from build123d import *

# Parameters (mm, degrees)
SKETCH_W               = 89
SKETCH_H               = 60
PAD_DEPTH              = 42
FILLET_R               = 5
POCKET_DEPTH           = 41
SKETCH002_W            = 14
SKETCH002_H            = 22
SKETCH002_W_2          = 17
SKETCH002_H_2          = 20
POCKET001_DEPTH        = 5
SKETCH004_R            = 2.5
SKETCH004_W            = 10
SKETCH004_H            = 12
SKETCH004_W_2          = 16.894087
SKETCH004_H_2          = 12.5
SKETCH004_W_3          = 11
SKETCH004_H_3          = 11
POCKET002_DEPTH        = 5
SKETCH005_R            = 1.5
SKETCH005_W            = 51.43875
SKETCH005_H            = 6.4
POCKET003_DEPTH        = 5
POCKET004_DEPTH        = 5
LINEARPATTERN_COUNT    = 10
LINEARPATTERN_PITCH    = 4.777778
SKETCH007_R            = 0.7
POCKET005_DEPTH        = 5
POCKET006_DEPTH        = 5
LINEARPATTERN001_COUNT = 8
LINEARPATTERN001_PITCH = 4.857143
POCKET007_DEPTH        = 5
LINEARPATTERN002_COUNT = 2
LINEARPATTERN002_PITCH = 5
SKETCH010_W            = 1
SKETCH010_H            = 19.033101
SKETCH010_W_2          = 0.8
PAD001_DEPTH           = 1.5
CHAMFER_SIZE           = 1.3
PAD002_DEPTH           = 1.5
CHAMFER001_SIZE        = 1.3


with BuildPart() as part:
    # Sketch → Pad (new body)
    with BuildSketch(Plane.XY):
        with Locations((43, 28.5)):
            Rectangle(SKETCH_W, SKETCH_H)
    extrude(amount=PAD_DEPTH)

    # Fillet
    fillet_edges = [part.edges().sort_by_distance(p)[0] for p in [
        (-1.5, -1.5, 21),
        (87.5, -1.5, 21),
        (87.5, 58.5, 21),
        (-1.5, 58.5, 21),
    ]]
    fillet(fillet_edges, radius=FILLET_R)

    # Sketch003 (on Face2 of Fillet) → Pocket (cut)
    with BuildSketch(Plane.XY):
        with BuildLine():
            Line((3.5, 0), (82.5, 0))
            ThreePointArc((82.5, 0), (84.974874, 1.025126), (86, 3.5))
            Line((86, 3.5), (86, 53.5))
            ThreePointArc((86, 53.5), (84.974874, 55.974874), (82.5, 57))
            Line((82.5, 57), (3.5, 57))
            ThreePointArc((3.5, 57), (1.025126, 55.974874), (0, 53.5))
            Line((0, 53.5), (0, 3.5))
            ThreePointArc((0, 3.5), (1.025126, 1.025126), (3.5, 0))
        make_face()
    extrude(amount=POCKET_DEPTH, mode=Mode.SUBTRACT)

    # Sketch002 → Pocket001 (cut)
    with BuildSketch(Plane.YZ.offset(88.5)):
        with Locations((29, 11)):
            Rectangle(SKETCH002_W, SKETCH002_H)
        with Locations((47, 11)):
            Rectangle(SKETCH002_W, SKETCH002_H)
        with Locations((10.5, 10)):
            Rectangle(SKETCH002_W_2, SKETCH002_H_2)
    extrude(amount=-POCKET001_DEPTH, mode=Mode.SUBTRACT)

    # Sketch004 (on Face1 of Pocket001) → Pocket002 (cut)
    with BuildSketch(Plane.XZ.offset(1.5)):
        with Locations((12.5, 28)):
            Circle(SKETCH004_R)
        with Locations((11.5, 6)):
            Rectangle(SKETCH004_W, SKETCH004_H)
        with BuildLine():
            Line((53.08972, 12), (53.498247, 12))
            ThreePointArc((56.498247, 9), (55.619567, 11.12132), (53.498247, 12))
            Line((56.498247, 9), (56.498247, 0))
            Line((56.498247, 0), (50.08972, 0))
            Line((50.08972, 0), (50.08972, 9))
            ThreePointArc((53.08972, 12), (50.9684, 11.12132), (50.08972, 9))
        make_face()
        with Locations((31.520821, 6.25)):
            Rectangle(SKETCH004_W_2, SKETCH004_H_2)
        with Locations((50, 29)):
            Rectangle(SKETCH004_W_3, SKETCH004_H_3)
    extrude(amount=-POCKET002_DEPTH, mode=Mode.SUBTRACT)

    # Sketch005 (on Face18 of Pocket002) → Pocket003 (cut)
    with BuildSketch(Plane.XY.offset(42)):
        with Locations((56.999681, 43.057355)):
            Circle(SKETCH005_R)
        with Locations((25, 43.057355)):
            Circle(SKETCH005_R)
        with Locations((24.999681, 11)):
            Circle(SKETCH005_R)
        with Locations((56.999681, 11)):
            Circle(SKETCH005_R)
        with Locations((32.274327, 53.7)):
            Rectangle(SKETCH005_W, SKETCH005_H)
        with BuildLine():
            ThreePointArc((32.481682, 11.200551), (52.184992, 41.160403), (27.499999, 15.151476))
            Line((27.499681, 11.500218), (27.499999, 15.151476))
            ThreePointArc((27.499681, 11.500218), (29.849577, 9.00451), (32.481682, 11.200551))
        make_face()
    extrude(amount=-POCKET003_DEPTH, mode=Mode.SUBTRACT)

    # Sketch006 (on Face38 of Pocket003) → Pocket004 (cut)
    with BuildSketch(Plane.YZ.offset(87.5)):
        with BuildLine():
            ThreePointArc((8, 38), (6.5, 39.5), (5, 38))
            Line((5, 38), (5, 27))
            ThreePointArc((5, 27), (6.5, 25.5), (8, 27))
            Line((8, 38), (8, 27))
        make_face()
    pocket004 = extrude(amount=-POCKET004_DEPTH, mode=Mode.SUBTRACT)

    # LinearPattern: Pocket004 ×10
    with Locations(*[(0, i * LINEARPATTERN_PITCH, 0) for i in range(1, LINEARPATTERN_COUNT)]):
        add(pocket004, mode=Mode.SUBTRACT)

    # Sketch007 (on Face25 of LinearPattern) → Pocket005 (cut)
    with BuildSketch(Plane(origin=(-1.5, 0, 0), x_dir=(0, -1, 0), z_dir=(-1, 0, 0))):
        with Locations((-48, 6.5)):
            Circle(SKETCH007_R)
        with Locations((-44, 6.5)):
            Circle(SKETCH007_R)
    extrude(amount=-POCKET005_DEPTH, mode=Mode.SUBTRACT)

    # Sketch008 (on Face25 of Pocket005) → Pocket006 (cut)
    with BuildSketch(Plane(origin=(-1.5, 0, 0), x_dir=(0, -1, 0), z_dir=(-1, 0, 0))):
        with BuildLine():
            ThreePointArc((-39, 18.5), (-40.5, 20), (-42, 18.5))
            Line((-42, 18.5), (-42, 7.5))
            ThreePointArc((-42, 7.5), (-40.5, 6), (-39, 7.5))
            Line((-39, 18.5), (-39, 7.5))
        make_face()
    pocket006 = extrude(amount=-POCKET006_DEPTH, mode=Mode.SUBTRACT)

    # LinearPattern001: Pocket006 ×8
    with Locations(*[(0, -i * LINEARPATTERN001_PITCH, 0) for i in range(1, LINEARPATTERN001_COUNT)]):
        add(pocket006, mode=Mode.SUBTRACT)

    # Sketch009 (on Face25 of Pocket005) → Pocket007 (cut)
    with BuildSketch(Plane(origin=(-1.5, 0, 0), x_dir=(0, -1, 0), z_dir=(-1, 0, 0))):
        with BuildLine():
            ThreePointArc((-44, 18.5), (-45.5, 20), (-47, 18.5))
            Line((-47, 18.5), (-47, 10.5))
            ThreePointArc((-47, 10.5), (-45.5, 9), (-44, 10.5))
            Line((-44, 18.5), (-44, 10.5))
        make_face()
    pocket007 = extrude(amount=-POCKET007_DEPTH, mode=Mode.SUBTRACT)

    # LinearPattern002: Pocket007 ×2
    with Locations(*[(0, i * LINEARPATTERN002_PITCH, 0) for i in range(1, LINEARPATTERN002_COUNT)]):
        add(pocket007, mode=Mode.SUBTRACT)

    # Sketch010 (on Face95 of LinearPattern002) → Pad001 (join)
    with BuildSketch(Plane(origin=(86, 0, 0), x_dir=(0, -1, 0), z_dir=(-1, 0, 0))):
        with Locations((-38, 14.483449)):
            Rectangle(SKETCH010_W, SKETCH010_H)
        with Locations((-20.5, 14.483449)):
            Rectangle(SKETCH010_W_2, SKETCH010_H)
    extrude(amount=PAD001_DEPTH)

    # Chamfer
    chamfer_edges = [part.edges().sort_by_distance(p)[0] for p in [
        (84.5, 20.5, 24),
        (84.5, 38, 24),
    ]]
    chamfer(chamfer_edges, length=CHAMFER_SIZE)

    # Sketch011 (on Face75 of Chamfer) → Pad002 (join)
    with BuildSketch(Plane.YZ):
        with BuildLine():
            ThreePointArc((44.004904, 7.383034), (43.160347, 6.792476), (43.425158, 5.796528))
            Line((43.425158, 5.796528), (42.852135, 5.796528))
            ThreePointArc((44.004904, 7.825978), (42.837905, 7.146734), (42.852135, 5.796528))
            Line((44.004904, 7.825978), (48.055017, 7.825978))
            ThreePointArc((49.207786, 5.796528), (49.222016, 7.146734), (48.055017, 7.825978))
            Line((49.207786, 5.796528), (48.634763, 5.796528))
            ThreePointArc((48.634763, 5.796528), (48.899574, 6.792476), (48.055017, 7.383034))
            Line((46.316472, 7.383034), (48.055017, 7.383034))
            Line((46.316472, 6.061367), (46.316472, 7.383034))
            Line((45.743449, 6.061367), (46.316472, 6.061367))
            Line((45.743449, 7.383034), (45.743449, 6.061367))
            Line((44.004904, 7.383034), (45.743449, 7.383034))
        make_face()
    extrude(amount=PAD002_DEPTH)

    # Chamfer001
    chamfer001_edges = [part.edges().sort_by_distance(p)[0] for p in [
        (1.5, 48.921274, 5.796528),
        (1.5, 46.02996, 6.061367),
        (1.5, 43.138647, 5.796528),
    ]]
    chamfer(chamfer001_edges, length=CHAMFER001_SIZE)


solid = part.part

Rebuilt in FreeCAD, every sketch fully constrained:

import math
import FreeCAD as App
import Part
import Sketcher

V = App.Vector
Q = App.Units.Quantity


def edges_at(feature, points):
    """Names of the edges that pass closest to the given points."""
    edges = feature.Shape.Edges
    near = lambda p: min(range(len(edges)), key=lambda i: edges[i].distToShape(Part.Vertex(*p))[0])
    return sorted({f"Edge{near(p) + 1}" for p in points})

doc = App.newDocument("Part")
body = doc.addObject("PartDesign::Body", "Body")

# Sketch on XY plane
sketch1 = body.newObject("Sketcher::SketchObject", "Sketch")
sketch1.AttachmentSupport = (doc.getObject("XY_Plane"), [""])
sketch1.MapMode = "FlatFace"
sketch1.addGeometry(Part.LineSegment(V(-2, 58, 0), V(-2, -2, 0)), False)
sketch1.addGeometry(Part.LineSegment(V(-2, -2, 0), V(88, -2, 0)), False)
sketch1.addGeometry(Part.LineSegment(V(88, -2, 0), V(88, 58, 0)), False)
sketch1.addGeometry(Part.LineSegment(V(88, 58, 0), V(-2, 58, 0)), False)
sketch1.addConstraint(Sketcher.Constraint("Coincident", 0, 2, 1, 1))
sketch1.addConstraint(Sketcher.Constraint("Coincident", 1, 2, 2, 1))
sketch1.addConstraint(Sketcher.Constraint("Coincident", 2, 2, 3, 1))
sketch1.addConstraint(Sketcher.Constraint("Coincident", 3, 2, 0, 1))
sketch1.addConstraint(Sketcher.Constraint("Vertical", 0))
sketch1.addConstraint(Sketcher.Constraint("Horizontal", 1))
sketch1.addConstraint(Sketcher.Constraint("Vertical", 2))
sketch1.addConstraint(Sketcher.Constraint("Horizontal", 3))
sketch1.addConstraint(Sketcher.Constraint("DistanceX", 1, 1, 1, 2, Q("89 mm")))
sketch1.addConstraint(Sketcher.Constraint("DistanceY", 0, 2, 0, 1, Q("60 mm")))
sketch1.addConstraint(Sketcher.Constraint("DistanceX", 0, 2, -1, 1, Q("1.5 mm")))
sketch1.addConstraint(Sketcher.Constraint("DistanceY", 0, 2, -1, 1, Q("1.5 mm")))
pad1 = body.newObject("PartDesign::Pad", "Pad")
pad1.Profile = sketch1
pad1.Length = 42
doc.recompute()

fillet = body.newObject("PartDesign::Fillet", "Fillet")
fillet.Base = (pad1, edges_at(pad1, [
    (-1.5, -1.5, 21),
    (87.5, -1.5, 21),
    (87.5, 58.5, 21),
    (-1.5, 58.5, 21),
]))
fillet.Radius = 5

# Sketch on XY plane
sketch2 = body.newObject("Sketcher::SketchObject", "Sketch001")
sketch2.AttachmentSupport = (doc.getObject("XY_Plane"), [""])
sketch2.MapMode = "FlatFace"
sketch2.addGeometry(Part.LineSegment(V(3.5, 0, 0), V(82.5, 0, 0)), False)
sketch2.addGeometry(Part.ArcOfCircle(Part.Circle(V(82.5, 3.5, 0), V(0, 0, 1), 3.5), math.radians(-90), math.radians(0)), False)
sketch2.addGeometry(Part.LineSegment(V(86, 3.5, 0), V(86, 53.5, 0)), False)
sketch2.addGeometry(Part.ArcOfCircle(Part.Circle(V(82.5, 53.5, 0), V(0, 0, 1), 3.5), math.radians(0), math.radians(90)), False)
sketch2.addGeometry(Part.LineSegment(V(82.5, 57, 0), V(3.5, 57, 0)), False)
sketch2.addGeometry(Part.ArcOfCircle(Part.Circle(V(3.5, 53.5, 0), V(0, 0, 1), 3.5), math.radians(90), math.radians(180)), False)
sketch2.addGeometry(Part.LineSegment(V(0, 53.5, 0), V(0, 3.5, 0)), False)
sketch2.addGeometry(Part.ArcOfCircle(Part.Circle(V(3.5, 3.5, 0), V(0, 0, 1), 3.5), math.radians(180), math.radians(270)), False)
sketch2.addConstraint(Sketcher.Constraint("Tangent", 0, 2, 1, 1))
sketch2.addConstraint(Sketcher.Constraint("Tangent", 1, 2, 2, 1))
sketch2.addConstraint(Sketcher.Constraint("Tangent", 2, 2, 3, 1))
sketch2.addConstraint(Sketcher.Constraint("Tangent", 3, 2, 4, 1))
sketch2.addConstraint(Sketcher.Constraint("Tangent", 4, 2, 5, 1))
sketch2.addConstraint(Sketcher.Constraint("Tangent", 5, 2, 6, 1))
sketch2.addConstraint(Sketcher.Constraint("Tangent", 6, 2, 7, 1))
sketch2.addConstraint(Sketcher.Constraint("Tangent", 7, 2, 0, 1))
sketch2.addConstraint(Sketcher.Constraint("Horizontal", 0))
sketch2.addConstraint(Sketcher.Constraint("Vertical", 2))
sketch2.addConstraint(Sketcher.Constraint("Horizontal", 4))
sketch2.addConstraint(Sketcher.Constraint("Vertical", 6))
sketch2.addConstraint(Sketcher.Constraint("Equal", 1, 3))
sketch2.addConstraint(Sketcher.Constraint("Equal", 3, 5))
sketch2.addConstraint(Sketcher.Constraint("Equal", 5, 7))
sketch2.addConstraint(Sketcher.Constraint("PointOnObject", 0, 2, -1))
sketch2.addConstraint(Sketcher.Constraint("PointOnObject", 5, 2, -2))
sketch2.addConstraint(Sketcher.Constraint("Radius", 1, Q("3.499999 mm")))
sketch2.addConstraint(Sketcher.Constraint("DistanceX", 0, 1, 0, 2, Q("79 mm")))
sketch2.addConstraint(Sketcher.Constraint("DistanceY", 2, 1, 2, 2, Q("50 mm")))
pocket1 = body.newObject("PartDesign::Pocket", "Pocket")
pocket1.Profile = sketch2
pocket1.Length = 41
pocket1.Reversed = True

# Sketch on YZ plane
sketch3 = body.newObject("Sketcher::SketchObject", "Sketch002")
sketch3.AttachmentSupport = (doc.getObject("YZ_Plane"), [""])
sketch3.MapMode = "FlatFace"
sketch3.AttachmentOffset = App.Placement(V(0, 0, 88.5), App.Rotation())
sketch3.addGeometry(Part.LineSegment(V(22, 22, 0), V(22, 0, 0)), False)
sketch3.addGeometry(Part.LineSegment(V(22, 0, 0), V(36, 0, 0)), False)
sketch3.addGeometry(Part.LineSegment(V(36, 0, 0), V(36, 22, 0)), False)
sketch3.addGeometry(Part.LineSegment(V(36, 22, 0), V(22, 22, 0)), False)
sketch3.addGeometry(Part.LineSegment(V(40, 22, 0), V(40, 0, 0)), False)
sketch3.addGeometry(Part.LineSegment(V(40, 0, 0), V(54, 0, 0)), False)
sketch3.addGeometry(Part.LineSegment(V(54, 0, 0), V(54, 22, 0)), False)
sketch3.addGeometry(Part.LineSegment(V(54, 22, 0), V(40, 22, 0)), False)
sketch3.addGeometry(Part.LineSegment(V(2, 20, 0), V(2, 0, 0)), False)
sketch3.addGeometry(Part.LineSegment(V(2, 0, 0), V(19, 0, 0)), False)
sketch3.addGeometry(Part.LineSegment(V(19, 0, 0), V(19, 20, 0)), False)
sketch3.addGeometry(Part.LineSegment(V(19, 20, 0), V(2, 20, 0)), False)
sketch3.addConstraint(Sketcher.Constraint("Coincident", 0, 2, 1, 1))
sketch3.addConstraint(Sketcher.Constraint("Coincident", 1, 2, 2, 1))
sketch3.addConstraint(Sketcher.Constraint("Coincident", 2, 2, 3, 1))
sketch3.addConstraint(Sketcher.Constraint("Coincident", 3, 2, 0, 1))
sketch3.addConstraint(Sketcher.Constraint("Coincident", 4, 2, 5, 1))
sketch3.addConstraint(Sketcher.Constraint("Coincident", 5, 2, 6, 1))
sketch3.addConstraint(Sketcher.Constraint("Coincident", 6, 2, 7, 1))
sketch3.addConstraint(Sketcher.Constraint("Coincident", 7, 2, 4, 1))
sketch3.addConstraint(Sketcher.Constraint("Coincident", 8, 2, 9, 1))
sketch3.addConstraint(Sketcher.Constraint("Coincident", 9, 2, 10, 1))
sketch3.addConstraint(Sketcher.Constraint("Coincident", 10, 2, 11, 1))
sketch3.addConstraint(Sketcher.Constraint("Coincident", 11, 2, 8, 1))
sketch3.addConstraint(Sketcher.Constraint("Vertical", 0))
sketch3.addConstraint(Sketcher.Constraint("Horizontal", 1))
sketch3.addConstraint(Sketcher.Constraint("Vertical", 2))
sketch3.addConstraint(Sketcher.Constraint("Horizontal", 3))
sketch3.addConstraint(Sketcher.Constraint("Vertical", 4))
sketch3.addConstraint(Sketcher.Constraint("Horizontal", 5))
sketch3.addConstraint(Sketcher.Constraint("Vertical", 6))
sketch3.addConstraint(Sketcher.Constraint("Horizontal", 7))
sketch3.addConstraint(Sketcher.Constraint("Vertical", 8))
sketch3.addConstraint(Sketcher.Constraint("Horizontal", 9))
sketch3.addConstraint(Sketcher.Constraint("Vertical", 10))
sketch3.addConstraint(Sketcher.Constraint("Horizontal", 11))
sketch3.addConstraint(Sketcher.Constraint("PointOnObject", 0, 2, -1))
sketch3.addConstraint(Sketcher.Constraint("PointOnObject", 4, 2, -1))
sketch3.addConstraint(Sketcher.Constraint("PointOnObject", 8, 2, -1))
sketch3.addConstraint(Sketcher.Constraint("Horizontal", 3, 2, 6, 2))
sketch3.addConstraint(Sketcher.Constraint("Equal", 3, 5))
sketch3.addConstraint(Sketcher.Constraint("DistanceX", 1, 1, 1, 2, Q("14 mm")))
sketch3.addConstraint(Sketcher.Constraint("DistanceX", 9, 1, 9, 2, Q("17 mm")))
sketch3.addConstraint(Sketcher.Constraint("DistanceY", 0, 2, 0, 1, Q("22 mm")))
sketch3.addConstraint(Sketcher.Constraint("DistanceY", 8, 2, 8, 1, Q("20 mm")))
sketch3.addConstraint(Sketcher.Constraint("DistanceX", -1, 1, 0, 2, Q("22 mm")))
sketch3.addConstraint(Sketcher.Constraint("DistanceX", -1, 1, 4, 2, Q("40 mm")))
sketch3.addConstraint(Sketcher.Constraint("DistanceX", -1, 1, 8, 2, Q("2 mm")))
pocket2 = body.newObject("PartDesign::Pocket", "Pocket001")
pocket2.Profile = sketch3
pocket2.Length = 5

# Sketch on XZ plane
sketch4 = body.newObject("Sketcher::SketchObject", "Sketch003")
sketch4.AttachmentSupport = (doc.getObject("XZ_Plane"), [""])
sketch4.MapMode = "FlatFace"
sketch4.AttachmentOffset = App.Placement(V(0, 0, 1.5), App.Rotation())
sketch4.addGeometry(Part.Circle(V(12.5, 28, 0), V(0, 0, 1), 2.5), False)
sketch4.addGeometry(Part.LineSegment(V(6.5, 12, 0), V(6.5, 0, 0)), False)
sketch4.addGeometry(Part.LineSegment(V(6.5, 0, 0), V(16.5, 0, 0)), False)
sketch4.addGeometry(Part.LineSegment(V(16.5, 0, 0), V(16.5, 12, 0)), False)
sketch4.addGeometry(Part.LineSegment(V(16.5, 12, 0), V(6.5, 12, 0)), False)
sketch4.addGeometry(Part.LineSegment(V(53.5, 12, 0), V(53.09, 12, 0)), False)
sketch4.addGeometry(Part.ArcOfCircle(Part.Circle(V(53.09, 9, 0), V(0, 0, 1), 3), math.radians(90), math.radians(180)), False)
sketch4.addGeometry(Part.LineSegment(V(50.09, 9, 0), V(50.09, 0, 0)), False)
sketch4.addGeometry(Part.LineSegment(V(50.09, 0, 0), V(56.5, 0, 0)), False)
sketch4.addGeometry(Part.LineSegment(V(56.5, 0, 0), V(56.5, 9, 0)), False)
sketch4.addGeometry(Part.ArcOfCircle(Part.Circle(V(53.5, 9, 0), V(0, 0, 1), 3), math.radians(0), math.radians(90)), False)
sketch4.addGeometry(Part.LineSegment(V(23.07, 12.5, 0), V(23.07, 0, 0)), False)
sketch4.addGeometry(Part.LineSegment(V(23.07, 0, 0), V(39.97, 0, 0)), False)
sketch4.addGeometry(Part.LineSegment(V(39.97, 0, 0), V(39.97, 12.5, 0)), False)
sketch4.addGeometry(Part.LineSegment(V(39.97, 12.5, 0), V(23.07, 12.5, 0)), False)
sketch4.addGeometry(Part.LineSegment(V(44.5, 34.5, 0), V(44.5, 23.5, 0)), False)
sketch4.addGeometry(Part.LineSegment(V(44.5, 23.5, 0), V(55.5, 23.5, 0)), False)
sketch4.addGeometry(Part.LineSegment(V(55.5, 23.5, 0), V(55.5, 34.5, 0)), False)
sketch4.addGeometry(Part.LineSegment(V(55.5, 34.5, 0), V(44.5, 34.5, 0)), False)
sketch4.addConstraint(Sketcher.Constraint("Coincident", 1, 2, 2, 1))
sketch4.addConstraint(Sketcher.Constraint("Coincident", 2, 2, 3, 1))
sketch4.addConstraint(Sketcher.Constraint("Coincident", 3, 2, 4, 1))
sketch4.addConstraint(Sketcher.Constraint("Coincident", 4, 2, 1, 1))
sketch4.addConstraint(Sketcher.Constraint("Tangent", 5, 2, 6, 1))
sketch4.addConstraint(Sketcher.Constraint("Tangent", 6, 2, 7, 1))
sketch4.addConstraint(Sketcher.Constraint("Coincident", 7, 2, 8, 1))
sketch4.addConstraint(Sketcher.Constraint("Coincident", 8, 2, 9, 1))
sketch4.addConstraint(Sketcher.Constraint("Tangent", 9, 2, 10, 1))
sketch4.addConstraint(Sketcher.Constraint("Tangent", 10, 2, 5, 1))
sketch4.addConstraint(Sketcher.Constraint("Coincident", 11, 2, 12, 1))
sketch4.addConstraint(Sketcher.Constraint("Coincident", 12, 2, 13, 1))
sketch4.addConstraint(Sketcher.Constraint("Coincident", 13, 2, 14, 1))
sketch4.addConstraint(Sketcher.Constraint("Coincident", 14, 2, 11, 1))
sketch4.addConstraint(Sketcher.Constraint("Coincident", 15, 2, 16, 1))
sketch4.addConstraint(Sketcher.Constraint("Coincident", 16, 2, 17, 1))
sketch4.addConstraint(Sketcher.Constraint("Coincident", 17, 2, 18, 1))
sketch4.addConstraint(Sketcher.Constraint("Coincident", 18, 2, 15, 1))
sketch4.addConstraint(Sketcher.Constraint("Vertical", 1))
sketch4.addConstraint(Sketcher.Constraint("Horizontal", 2))
sketch4.addConstraint(Sketcher.Constraint("Vertical", 3))
sketch4.addConstraint(Sketcher.Constraint("Horizontal", 4))
sketch4.addConstraint(Sketcher.Constraint("Horizontal", 5))
sketch4.addConstraint(Sketcher.Constraint("Vertical", 7))
sketch4.addConstraint(Sketcher.Constraint("Horizontal", 8))
sketch4.addConstraint(Sketcher.Constraint("Vertical", 9))
sketch4.addConstraint(Sketcher.Constraint("Vertical", 11))
sketch4.addConstraint(Sketcher.Constraint("Horizontal", 12))
sketch4.addConstraint(Sketcher.Constraint("Vertical", 13))
sketch4.addConstraint(Sketcher.Constraint("Horizontal", 14))
sketch4.addConstraint(Sketcher.Constraint("Vertical", 15))
sketch4.addConstraint(Sketcher.Constraint("Horizontal", 16))
sketch4.addConstraint(Sketcher.Constraint("Vertical", 17))
sketch4.addConstraint(Sketcher.Constraint("Horizontal", 18))
sketch4.addConstraint(Sketcher.Constraint("Equal", 6, 10))
sketch4.addConstraint(Sketcher.Constraint("PointOnObject", 1, 2, -1))
sketch4.addConstraint(Sketcher.Constraint("PointOnObject", 7, 2, -1))
sketch4.addConstraint(Sketcher.Constraint("PointOnObject", 11, 2, -1))
sketch4.addConstraint(Sketcher.Constraint("Horizontal", 4, 2, 5, 2))
sketch4.addConstraint(Sketcher.Constraint("Equal", 18, 15))
sketch4.addConstraint(Sketcher.Constraint("Diameter", 0, Q("5 mm")))
sketch4.addConstraint(Sketcher.Constraint("Radius", 6, Q("3.000001 mm")))
sketch4.addConstraint(Sketcher.Constraint("DistanceX", 2, 1, 2, 2, Q("10 mm")))
sketch4.addConstraint(Sketcher.Constraint("DistanceX", 16, 1, 16, 2, Q("11 mm")))
sketch4.addConstraint(Sketcher.Constraint("DistanceY", 1, 2, 1, 1, Q("12 mm")))
sketch4.addConstraint(Sketcher.Constraint("DistanceY", 11, 2, 11, 1, Q("12.5 mm")))
sketch4.addConstraint(Sketcher.Constraint("DistanceY", -1, 1, 0, 3, Q("28 mm")))
sketch4.addConstraint(Sketcher.Constraint("DistanceX", 1, 2, 0, 3, Q("6 mm")))
sketch4.addConstraint(Sketcher.Constraint("DistanceY", 13, 2, 15, 2, Q("11 mm")))
sketch4.addConstraint(Sketcher.Constraint("DistanceX", -1, 1, 0, 3, Q("12.5 mm")))
sketch4.addConstraint(Sketcher.Constraint("DistanceX", -1, 1, 15, 2, Q("44.5 mm")))
sketch4.addConstraint(Sketcher.Constraint("DistanceX", 5, 2, 5, 1, Q("0.408527 mm")))
sketch4.addConstraint(Sketcher.Constraint("DistanceX", 12, 1, 12, 2, Q("16.894087 mm")))
sketch4.addConstraint(Sketcher.Constraint("DistanceX", -1, 1, 6, 3, Q("53.089721 mm")))
sketch4.addConstraint(Sketcher.Constraint("DistanceX", 12, 2, 10, 3, Q("13.530381 mm")))
pocket3 = body.newObject("PartDesign::Pocket", "Pocket002")
pocket3.Profile = sketch4
pocket3.Length = 5

# Sketch on XY plane
sketch5 = body.newObject("Sketcher::SketchObject", "Sketch004")
sketch5.AttachmentSupport = (doc.getObject("XY_Plane"), [""])
sketch5.MapMode = "FlatFace"
sketch5.AttachmentOffset = App.Placement(V(0, 0, 42), App.Rotation())
sketch5.addGeometry(Part.Circle(V(57, 43.1, 0), V(0, 0, 1), 1.5), False)
sketch5.addGeometry(Part.Circle(V(25, 43.1, 0), V(0, 0, 1), 1.5), False)
sketch5.addGeometry(Part.Circle(V(25, 11, 0), V(0, 0, 1), 1.5), False)
sketch5.addGeometry(Part.Circle(V(57, 11, 0), V(0, 0, 1), 1.5), False)
sketch5.addGeometry(Part.LineSegment(V(6.6, 56.9, 0), V(6.6, 50.5, 0)), False)
sketch5.addGeometry(Part.LineSegment(V(6.6, 50.5, 0), V(58, 50.5, 0)), False)
sketch5.addGeometry(Part.LineSegment(V(58, 50.5, 0), V(58, 56.9, 0)), False)
sketch5.addGeometry(Part.LineSegment(V(58, 56.9, 0), V(6.6, 56.9, 0)), False)
sketch5.addGeometry(Part.ArcOfCircle(Part.Circle(V(41, 27.1, 0), V(0, 0, 1), 18), math.radians(-118), math.radians(221)), False)
sketch5.addGeometry(Part.LineSegment(V(27.5, 15.2, 0), V(27.5, 11.5, 0)), False)
sketch5.addGeometry(Part.ArcOfCircle(Part.Circle(V(30, 11.5, 0), V(0, 0, 1), 2.5), math.radians(180), math.radians(353)), False)
sketch5.addConstraint(Sketcher.Constraint("Coincident", 4, 2, 5, 1))
sketch5.addConstraint(Sketcher.Constraint("Coincident", 5, 2, 6, 1))
sketch5.addConstraint(Sketcher.Constraint("Coincident", 6, 2, 7, 1))
sketch5.addConstraint(Sketcher.Constraint("Coincident", 7, 2, 4, 1))
sketch5.addConstraint(Sketcher.Constraint("Coincident", 8, 2, 9, 1))
sketch5.addConstraint(Sketcher.Constraint("Tangent", 9, 2, 10, 1))
sketch5.addConstraint(Sketcher.Constraint("Coincident", 10, 2, 8, 1))
sketch5.addConstraint(Sketcher.Constraint("Vertical", 4))
sketch5.addConstraint(Sketcher.Constraint("Horizontal", 5))
sketch5.addConstraint(Sketcher.Constraint("Vertical", 6))
sketch5.addConstraint(Sketcher.Constraint("Horizontal", 7))
sketch5.addConstraint(Sketcher.Constraint("Equal", 0, 1))
sketch5.addConstraint(Sketcher.Constraint("Equal", 1, 2))
sketch5.addConstraint(Sketcher.Constraint("Equal", 2, 3))
sketch5.addConstraint(Sketcher.Constraint("Horizontal", 0, 3, 1, 3))
sketch5.addConstraint(Sketcher.Constraint("Horizontal", 2, 3, 3, 3))
sketch5.addConstraint(Sketcher.Constraint("Vertical", 0, 3, 3, 3))
sketch5.addConstraint(Sketcher.Constraint("Diameter", 0, Q("3 mm")))
sketch5.addConstraint(Sketcher.Constraint("Radius", 8, Q("18 mm")))
sketch5.addConstraint(Sketcher.Constraint("Radius", 10, Q("2.5 mm")))
sketch5.addConstraint(Sketcher.Constraint("DistanceY", 4, 2, 4, 1, Q("6.4 mm")))
sketch5.addConstraint(Sketcher.Constraint("DistanceX", -1, 1, 1, 3, Q("25 mm")))
sketch5.addConstraint(Sketcher.Constraint("DistanceY", -1, 1, 2, 3, Q("11 mm")))
sketch5.addConstraint(Sketcher.Constraint("DistanceX", -1, 1, 8, 3, Q("41 mm")))
sketch5.addConstraint(Sketcher.Constraint("DistanceX", 2, 3, 0, 3, Q("32 mm")))
sketch5.addConstraint(Sketcher.Constraint("DistanceY", 8, 3, 0, 3, Q("15.999999 mm")))
sketch5.addConstraint(Sketcher.Constraint("DistanceX", 2, 3, 10, 3, Q("5 mm")))
sketch5.addConstraint(Sketcher.Constraint("DistanceY", 10, 3, 4, 2, Q("39 mm")))
sketch5.addConstraint(Sketcher.Constraint("DistanceY", -1, 1, 10, 3, Q("11.5 mm")))
sketch5.addConstraint(Sketcher.Constraint("DistanceX", -1, 1, 8, 2, Q("27.499999 mm")))
sketch5.addConstraint(Sketcher.Constraint("DistanceX", 10, 3, 10, 2, Q("2.482001 mm")))
sketch5.addConstraint(Sketcher.Constraint("DistanceX", 5, 1, 5, 2, Q("51.43875 mm")))
sketch5.addConstraint(Sketcher.Constraint("Distance", 9, Q("3.651258 mm")))
sketch5.addConstraint(Sketcher.Constraint("DistanceX", 4, 2, 1, 3, Q("18.445048 mm")))
pocket4 = body.newObject("PartDesign::Pocket", "Pocket003")
pocket4.Profile = sketch5
pocket4.Length = 5

# Sketch on YZ plane
sketch6 = body.newObject("Sketcher::SketchObject", "Sketch005")
sketch6.AttachmentSupport = (doc.getObject("YZ_Plane"), [""])
sketch6.MapMode = "FlatFace"
sketch6.AttachmentOffset = App.Placement(V(0, 0, 87.5), App.Rotation())
sketch6.addGeometry(Part.ArcOfCircle(Part.Circle(V(6.5, 38, 0), V(0, 0, 1), 1.5), math.radians(0), math.radians(180)), False)
sketch6.addGeometry(Part.LineSegment(V(5, 38, 0), V(5, 27, 0)), False)
sketch6.addGeometry(Part.ArcOfCircle(Part.Circle(V(6.5, 27, 0), V(0, 0, 1), 1.5), math.radians(180), math.radians(360)), False)
sketch6.addGeometry(Part.LineSegment(V(8, 27, 0), V(8, 38, 0)), False)
sketch6.addConstraint(Sketcher.Constraint("Tangent", 0, 2, 1, 1))
sketch6.addConstraint(Sketcher.Constraint("Tangent", 1, 2, 2, 1))
sketch6.addConstraint(Sketcher.Constraint("Tangent", 2, 2, 3, 1))
sketch6.addConstraint(Sketcher.Constraint("Tangent", 3, 2, 0, 1))
sketch6.addConstraint(Sketcher.Constraint("Vertical", 1))
sketch6.addConstraint(Sketcher.Constraint("Vertical", 3))
sketch6.addConstraint(Sketcher.Constraint("Radius", 0, Q("1.5 mm")))
sketch6.addConstraint(Sketcher.Constraint("DistanceY", 1, 2, 1, 1, Q("11 mm")))
sketch6.addConstraint(Sketcher.Constraint("DistanceY", -1, 1, 0, 3, Q("38 mm")))
sketch6.addConstraint(Sketcher.Constraint("DistanceX", -1, 1, 0, 2, Q("5 mm")))
pocket5 = body.newObject("PartDesign::Pocket", "Pocket004")
pocket5.Profile = sketch6
pocket5.Length = 5
doc.recompute()

linearpattern = body.newObject("PartDesign::LinearPattern", "LinearPattern")
linearpattern.Originals = [pocket5]
linearpattern.Direction = (doc.getObject("Y_Axis"), [""])
linearpattern.Mode = "offset"
linearpattern.Offset = 4.777778
linearpattern.Occurrences = 10
body.Tip = linearpattern

# Sketch on YZ plane
sketch7 = body.newObject("Sketcher::SketchObject", "Sketch006")
sketch7.AttachmentSupport = (doc.getObject("YZ_Plane"), [""])
sketch7.MapMode = "FlatFace"
sketch7.AttachmentOffset = App.Placement(V(0, 0, -1.5), App.Rotation())
sketch7.addGeometry(Part.Circle(V(48, 6.5, 0), V(0, 0, 1), 0.7), False)
sketch7.addGeometry(Part.Circle(V(44, 6.5, 0), V(0, 0, 1), 0.7), False)
sketch7.addConstraint(Sketcher.Constraint("Equal", 0, 1))
sketch7.addConstraint(Sketcher.Constraint("Horizontal", 0, 3, 1, 3))
sketch7.addConstraint(Sketcher.Constraint("Diameter", 0, Q("1.4 mm")))
sketch7.addConstraint(Sketcher.Constraint("DistanceX", -1, 1, 0, 3, Q("48 mm")))
sketch7.addConstraint(Sketcher.Constraint("DistanceX", -1, 1, 1, 3, Q("44 mm")))
sketch7.addConstraint(Sketcher.Constraint("DistanceY", -1, 1, 0, 3, Q("6.5 mm")))
pocket6 = body.newObject("PartDesign::Pocket", "Pocket005")
pocket6.Profile = sketch7
pocket6.Length = 5
pocket6.Reversed = True

# Sketch on YZ plane
sketch8 = body.newObject("Sketcher::SketchObject", "Sketch007")
sketch8.AttachmentSupport = (doc.getObject("YZ_Plane"), [""])
sketch8.MapMode = "FlatFace"
sketch8.AttachmentOffset = App.Placement(V(0, 0, -1.5), App.Rotation())
sketch8.addGeometry(Part.ArcOfCircle(Part.Circle(V(40.5, 18.5, 0), V(0, 0, 1), 1.5), math.radians(0), math.radians(180)), False)
sketch8.addGeometry(Part.LineSegment(V(42, 18.5, 0), V(42, 7.5, 0)), False)
sketch8.addGeometry(Part.ArcOfCircle(Part.Circle(V(40.5, 7.5, 0), V(0, 0, 1), 1.5), math.radians(180), math.radians(360)), False)
sketch8.addGeometry(Part.LineSegment(V(39, 7.5, 0), V(39, 18.5, 0)), False)
sketch8.addConstraint(Sketcher.Constraint("Tangent", 0, 1, 1, 1))
sketch8.addConstraint(Sketcher.Constraint("Tangent", 1, 2, 2, 2))
sketch8.addConstraint(Sketcher.Constraint("Tangent", 2, 1, 3, 1))
sketch8.addConstraint(Sketcher.Constraint("Tangent", 3, 2, 0, 2))
sketch8.addConstraint(Sketcher.Constraint("Vertical", 1))
sketch8.addConstraint(Sketcher.Constraint("Vertical", 3))
sketch8.addConstraint(Sketcher.Constraint("Radius", 0, Q("1.5 mm")))
sketch8.addConstraint(Sketcher.Constraint("DistanceY", 1, 2, 1, 1, Q("11 mm")))
sketch8.addConstraint(Sketcher.Constraint("DistanceX", -1, 1, 0, 1, Q("42 mm")))
sketch8.addConstraint(Sketcher.Constraint("DistanceY", -1, 1, 0, 3, Q("18.5 mm")))
pocket7 = body.newObject("PartDesign::Pocket", "Pocket006")
pocket7.Profile = sketch8
pocket7.Length = 5
pocket7.Reversed = True
doc.recompute()

linearpattern2 = body.newObject("PartDesign::LinearPattern", "LinearPattern001")
linearpattern2.Originals = [pocket7]
linearpattern2.Direction = (doc.getObject("Y_Axis"), [""])
linearpattern2.Mode = "offset"
linearpattern2.Offset = 4.857143
linearpattern2.Occurrences = 8
linearpattern2.Reversed = True
body.Tip = linearpattern2

# Sketch on YZ plane
sketch9 = body.newObject("Sketcher::SketchObject", "Sketch008")
sketch9.AttachmentSupport = (doc.getObject("YZ_Plane"), [""])
sketch9.MapMode = "FlatFace"
sketch9.AttachmentOffset = App.Placement(V(0, 0, -1.5), App.Rotation())
sketch9.addGeometry(Part.ArcOfCircle(Part.Circle(V(45.5, 18.5, 0), V(0, 0, 1), 1.5), math.radians(0), math.radians(180)), False)
sketch9.addGeometry(Part.LineSegment(V(47, 18.5, 0), V(47, 10.5, 0)), False)
sketch9.addGeometry(Part.ArcOfCircle(Part.Circle(V(45.5, 10.5, 0), V(0, 0, 1), 1.5), math.radians(180), math.radians(360)), False)
sketch9.addGeometry(Part.LineSegment(V(44, 10.5, 0), V(44, 18.5, 0)), False)
sketch9.addConstraint(Sketcher.Constraint("Tangent", 0, 1, 1, 1))
sketch9.addConstraint(Sketcher.Constraint("Tangent", 1, 2, 2, 2))
sketch9.addConstraint(Sketcher.Constraint("Tangent", 2, 1, 3, 1))
sketch9.addConstraint(Sketcher.Constraint("Tangent", 3, 2, 0, 2))
sketch9.addConstraint(Sketcher.Constraint("Vertical", 1))
sketch9.addConstraint(Sketcher.Constraint("Vertical", 3))
sketch9.addConstraint(Sketcher.Constraint("Radius", 0, Q("1.5 mm")))
sketch9.addConstraint(Sketcher.Constraint("DistanceY", 1, 2, 1, 1, Q("8 mm")))
sketch9.addConstraint(Sketcher.Constraint("DistanceX", -1, 1, 0, 1, Q("47 mm")))
sketch9.addConstraint(Sketcher.Constraint("DistanceY", -1, 1, 0, 3, Q("18.5 mm")))
pocket8 = body.newObject("PartDesign::Pocket", "Pocket007")
pocket8.Profile = sketch9
pocket8.Length = 5
pocket8.Reversed = True
doc.recompute()

linearpattern3 = body.newObject("PartDesign::LinearPattern", "LinearPattern002")
linearpattern3.Originals = [pocket8]
linearpattern3.Direction = (doc.getObject("Y_Axis"), [""])
linearpattern3.Mode = "offset"
linearpattern3.Offset = 5
linearpattern3.Occurrences = 2
body.Tip = linearpattern3

# Sketch on YZ plane
sketch10 = body.newObject("Sketcher::SketchObject", "Sketch009")
sketch10.AttachmentSupport = (doc.getObject("YZ_Plane"), [""])
sketch10.MapMode = "FlatFace"
sketch10.AttachmentOffset = App.Placement(V(0, 0, 86), App.Rotation())
sketch10.addGeometry(Part.LineSegment(V(38.5, 24, 0), V(38.5, 5, 0)), False)
sketch10.addGeometry(Part.LineSegment(V(38.5, 5, 0), V(37.5, 5, 0)), False)
sketch10.addGeometry(Part.LineSegment(V(37.5, 5, 0), V(37.5, 24, 0)), False)
sketch10.addGeometry(Part.LineSegment(V(37.5, 24, 0), V(38.5, 24, 0)), False)
sketch10.addGeometry(Part.LineSegment(V(20.9, 24, 0), V(20.9, 5, 0)), False)
sketch10.addGeometry(Part.LineSegment(V(20.9, 5, 0), V(20.1, 5, 0)), False)
sketch10.addGeometry(Part.LineSegment(V(20.1, 5, 0), V(20.1, 24, 0)), False)
sketch10.addGeometry(Part.LineSegment(V(20.1, 24, 0), V(20.9, 24, 0)), False)
sketch10.addConstraint(Sketcher.Constraint("Coincident", 0, 2, 1, 1))
sketch10.addConstraint(Sketcher.Constraint("Coincident", 1, 2, 2, 1))
sketch10.addConstraint(Sketcher.Constraint("Coincident", 2, 2, 3, 1))
sketch10.addConstraint(Sketcher.Constraint("Coincident", 3, 2, 0, 1))
sketch10.addConstraint(Sketcher.Constraint("Coincident", 4, 2, 5, 1))
sketch10.addConstraint(Sketcher.Constraint("Coincident", 5, 2, 6, 1))
sketch10.addConstraint(Sketcher.Constraint("Coincident", 6, 2, 7, 1))
sketch10.addConstraint(Sketcher.Constraint("Coincident", 7, 2, 4, 1))
sketch10.addConstraint(Sketcher.Constraint("Vertical", 0))
sketch10.addConstraint(Sketcher.Constraint("Horizontal", 1))
sketch10.addConstraint(Sketcher.Constraint("Vertical", 2))
sketch10.addConstraint(Sketcher.Constraint("Horizontal", 3))
sketch10.addConstraint(Sketcher.Constraint("Vertical", 4))
sketch10.addConstraint(Sketcher.Constraint("Horizontal", 5))
sketch10.addConstraint(Sketcher.Constraint("Vertical", 6))
sketch10.addConstraint(Sketcher.Constraint("Horizontal", 7))
sketch10.addConstraint(Sketcher.Constraint("Horizontal", 1, 2, 4, 2))
sketch10.addConstraint(Sketcher.Constraint("Horizontal", 3, 2, 6, 2))
sketch10.addConstraint(Sketcher.Constraint("DistanceX", 1, 2, 1, 1, Q("1 mm")))
sketch10.addConstraint(Sketcher.Constraint("DistanceX", 5, 2, 5, 1, Q("0.8 mm")))
sketch10.addConstraint(Sketcher.Constraint("DistanceY", -1, 1, 2, 2, Q("24 mm")))
sketch10.addConstraint(Sketcher.Constraint("DistanceX", -1, 1, 0, 2, Q("38.5 mm")))
sketch10.addConstraint(Sketcher.Constraint("DistanceX", -1, 1, 4, 2, Q("20.9 mm")))
sketch10.addConstraint(Sketcher.Constraint("DistanceY", 0, 2, 0, 1, Q("19.033101 mm")))
pad2 = body.newObject("PartDesign::Pad", "Pad001")
pad2.Profile = sketch10
pad2.Length = 1.5
pad2.Reversed = True
doc.recompute()

chamfer = body.newObject("PartDesign::Chamfer", "Chamfer")
chamfer.Base = (pad2, edges_at(pad2, [(84.5, 20.5, 24), (84.5, 38, 24)]))
chamfer.Size = 1.3

# Sketch on YZ plane
sketch11 = body.newObject("Sketcher::SketchObject", "Sketch010")
sketch11.AttachmentSupport = (doc.getObject("YZ_Plane"), [""])
sketch11.MapMode = "FlatFace"
sketch11.addGeometry(Part.ArcOfCircle(Part.Circle(V(44, 6.5, 0), V(0, 0, 1), 0.9), math.radians(90), math.radians(230)), False)
sketch11.addGeometry(Part.LineSegment(V(44, 7.4, 0), V(45.7, 7.4, 0)), False)
sketch11.addGeometry(Part.LineSegment(V(45.7, 7.4, 0), V(45.7, 6.1, 0)), False)
sketch11.addGeometry(Part.LineSegment(V(45.7, 6.1, 0), V(46.3, 6.1, 0)), False)
sketch11.addGeometry(Part.LineSegment(V(46.3, 6.1, 0), V(46.3, 7.4, 0)), False)
sketch11.addGeometry(Part.LineSegment(V(46.3, 7.4, 0), V(48.1, 7.4, 0)), False)
sketch11.addGeometry(Part.ArcOfCircle(Part.Circle(V(48.1, 6.5, 0), V(0, 0, 1), 0.9), math.radians(-50), math.radians(90)), False)
sketch11.addGeometry(Part.LineSegment(V(48.6, 5.8, 0), V(49.2, 5.8, 0)), False)
sketch11.addGeometry(Part.ArcOfCircle(Part.Circle(V(48.1, 6.5, 0), V(0, 0, 1), 1.3), math.radians(-31), math.radians(90)), False)
sketch11.addGeometry(Part.LineSegment(V(48.1, 7.8, 0), V(44, 7.8, 0)), False)
sketch11.addGeometry(Part.ArcOfCircle(Part.Circle(V(44, 6.5, 0), V(0, 0, 1), 1.3), math.radians(90), math.radians(211)), False)
sketch11.addGeometry(Part.LineSegment(V(42.9, 5.8, 0), V(43.4, 5.8, 0)), False)
sketch11.addConstraint(Sketcher.Constraint("Tangent", 0, 1, 1, 1))
sketch11.addConstraint(Sketcher.Constraint("Coincident", 1, 2, 2, 1))
sketch11.addConstraint(Sketcher.Constraint("Coincident", 2, 2, 3, 1))
sketch11.addConstraint(Sketcher.Constraint("Coincident", 3, 2, 4, 1))
sketch11.addConstraint(Sketcher.Constraint("Coincident", 4, 2, 5, 1))
sketch11.addConstraint(Sketcher.Constraint("Tangent", 5, 2, 6, 2))
sketch11.addConstraint(Sketcher.Constraint("Coincident", 6, 1, 7, 1))
sketch11.addConstraint(Sketcher.Constraint("Coincident", 7, 2, 8, 1))
sketch11.addConstraint(Sketcher.Constraint("Tangent", 8, 2, 9, 1))
sketch11.addConstraint(Sketcher.Constraint("Tangent", 9, 2, 10, 1))
sketch11.addConstraint(Sketcher.Constraint("Coincident", 10, 2, 11, 1))
sketch11.addConstraint(Sketcher.Constraint("Coincident", 11, 2, 0, 2))
sketch11.addConstraint(Sketcher.Constraint("Horizontal", 1))
sketch11.addConstraint(Sketcher.Constraint("Vertical", 2))
sketch11.addConstraint(Sketcher.Constraint("Horizontal", 3))
sketch11.addConstraint(Sketcher.Constraint("Vertical", 4))
sketch11.addConstraint(Sketcher.Constraint("Horizontal", 5))
sketch11.addConstraint(Sketcher.Constraint("Horizontal", 7))
sketch11.addConstraint(Sketcher.Constraint("Horizontal", 9))
sketch11.addConstraint(Sketcher.Constraint("Horizontal", 11))
sketch11.addConstraint(Sketcher.Constraint("Coincident", 8, 3, 6, 3))
sketch11.addConstraint(Sketcher.Constraint("Coincident", 10, 3, 0, 3))
sketch11.addConstraint(Sketcher.Constraint("Equal", 0, 6))
sketch11.addConstraint(Sketcher.Constraint("Equal", 8, 10))
sketch11.addConstraint(Sketcher.Constraint("Horizontal", 7, 2, 10, 2))
sketch11.addConstraint(Sketcher.Constraint("Equal", 1, 5))
sketch11.addConstraint(Sketcher.Constraint("Equal", 3, 7))
sketch11.addConstraint(Sketcher.Constraint("Radius", 0, Q("0.899179 mm")))
sketch11.addConstraint(Sketcher.Constraint("Radius", 8, Q("1.342123 mm")))
sketch11.addConstraint(Sketcher.Constraint("DistanceX", 1, 1, 1, 2, Q("1.738545 mm")))
sketch11.addConstraint(Sketcher.Constraint("DistanceX", 3, 1, 3, 2, Q("0.573023 mm")))
sketch11.addConstraint(Sketcher.Constraint("DistanceY", 2, 2, 2, 1, Q("1.321667 mm")))
sketch11.addConstraint(Sketcher.Constraint("DistanceX", -1, 1, 1, 2, Q("45.743449 mm")))
sketch11.addConstraint(Sketcher.Constraint("DistanceY", -1, 1, 7, 2, Q("5.796528 mm")))
pad3 = body.newObject("PartDesign::Pad", "Pad002")
pad3.Profile = sketch11
pad3.Length = 1.5
doc.recompute()

chamfer2 = body.newObject("PartDesign::Chamfer", "Chamfer001")
chamfer2.Base = (pad3, edges_at(pad3, [(1.5, 48.921, 5.797), (1.5, 46.03, 6.061), (1.5, 43.139, 5.797)]))
chamfer2.Size = 1.3

doc.recompute()
